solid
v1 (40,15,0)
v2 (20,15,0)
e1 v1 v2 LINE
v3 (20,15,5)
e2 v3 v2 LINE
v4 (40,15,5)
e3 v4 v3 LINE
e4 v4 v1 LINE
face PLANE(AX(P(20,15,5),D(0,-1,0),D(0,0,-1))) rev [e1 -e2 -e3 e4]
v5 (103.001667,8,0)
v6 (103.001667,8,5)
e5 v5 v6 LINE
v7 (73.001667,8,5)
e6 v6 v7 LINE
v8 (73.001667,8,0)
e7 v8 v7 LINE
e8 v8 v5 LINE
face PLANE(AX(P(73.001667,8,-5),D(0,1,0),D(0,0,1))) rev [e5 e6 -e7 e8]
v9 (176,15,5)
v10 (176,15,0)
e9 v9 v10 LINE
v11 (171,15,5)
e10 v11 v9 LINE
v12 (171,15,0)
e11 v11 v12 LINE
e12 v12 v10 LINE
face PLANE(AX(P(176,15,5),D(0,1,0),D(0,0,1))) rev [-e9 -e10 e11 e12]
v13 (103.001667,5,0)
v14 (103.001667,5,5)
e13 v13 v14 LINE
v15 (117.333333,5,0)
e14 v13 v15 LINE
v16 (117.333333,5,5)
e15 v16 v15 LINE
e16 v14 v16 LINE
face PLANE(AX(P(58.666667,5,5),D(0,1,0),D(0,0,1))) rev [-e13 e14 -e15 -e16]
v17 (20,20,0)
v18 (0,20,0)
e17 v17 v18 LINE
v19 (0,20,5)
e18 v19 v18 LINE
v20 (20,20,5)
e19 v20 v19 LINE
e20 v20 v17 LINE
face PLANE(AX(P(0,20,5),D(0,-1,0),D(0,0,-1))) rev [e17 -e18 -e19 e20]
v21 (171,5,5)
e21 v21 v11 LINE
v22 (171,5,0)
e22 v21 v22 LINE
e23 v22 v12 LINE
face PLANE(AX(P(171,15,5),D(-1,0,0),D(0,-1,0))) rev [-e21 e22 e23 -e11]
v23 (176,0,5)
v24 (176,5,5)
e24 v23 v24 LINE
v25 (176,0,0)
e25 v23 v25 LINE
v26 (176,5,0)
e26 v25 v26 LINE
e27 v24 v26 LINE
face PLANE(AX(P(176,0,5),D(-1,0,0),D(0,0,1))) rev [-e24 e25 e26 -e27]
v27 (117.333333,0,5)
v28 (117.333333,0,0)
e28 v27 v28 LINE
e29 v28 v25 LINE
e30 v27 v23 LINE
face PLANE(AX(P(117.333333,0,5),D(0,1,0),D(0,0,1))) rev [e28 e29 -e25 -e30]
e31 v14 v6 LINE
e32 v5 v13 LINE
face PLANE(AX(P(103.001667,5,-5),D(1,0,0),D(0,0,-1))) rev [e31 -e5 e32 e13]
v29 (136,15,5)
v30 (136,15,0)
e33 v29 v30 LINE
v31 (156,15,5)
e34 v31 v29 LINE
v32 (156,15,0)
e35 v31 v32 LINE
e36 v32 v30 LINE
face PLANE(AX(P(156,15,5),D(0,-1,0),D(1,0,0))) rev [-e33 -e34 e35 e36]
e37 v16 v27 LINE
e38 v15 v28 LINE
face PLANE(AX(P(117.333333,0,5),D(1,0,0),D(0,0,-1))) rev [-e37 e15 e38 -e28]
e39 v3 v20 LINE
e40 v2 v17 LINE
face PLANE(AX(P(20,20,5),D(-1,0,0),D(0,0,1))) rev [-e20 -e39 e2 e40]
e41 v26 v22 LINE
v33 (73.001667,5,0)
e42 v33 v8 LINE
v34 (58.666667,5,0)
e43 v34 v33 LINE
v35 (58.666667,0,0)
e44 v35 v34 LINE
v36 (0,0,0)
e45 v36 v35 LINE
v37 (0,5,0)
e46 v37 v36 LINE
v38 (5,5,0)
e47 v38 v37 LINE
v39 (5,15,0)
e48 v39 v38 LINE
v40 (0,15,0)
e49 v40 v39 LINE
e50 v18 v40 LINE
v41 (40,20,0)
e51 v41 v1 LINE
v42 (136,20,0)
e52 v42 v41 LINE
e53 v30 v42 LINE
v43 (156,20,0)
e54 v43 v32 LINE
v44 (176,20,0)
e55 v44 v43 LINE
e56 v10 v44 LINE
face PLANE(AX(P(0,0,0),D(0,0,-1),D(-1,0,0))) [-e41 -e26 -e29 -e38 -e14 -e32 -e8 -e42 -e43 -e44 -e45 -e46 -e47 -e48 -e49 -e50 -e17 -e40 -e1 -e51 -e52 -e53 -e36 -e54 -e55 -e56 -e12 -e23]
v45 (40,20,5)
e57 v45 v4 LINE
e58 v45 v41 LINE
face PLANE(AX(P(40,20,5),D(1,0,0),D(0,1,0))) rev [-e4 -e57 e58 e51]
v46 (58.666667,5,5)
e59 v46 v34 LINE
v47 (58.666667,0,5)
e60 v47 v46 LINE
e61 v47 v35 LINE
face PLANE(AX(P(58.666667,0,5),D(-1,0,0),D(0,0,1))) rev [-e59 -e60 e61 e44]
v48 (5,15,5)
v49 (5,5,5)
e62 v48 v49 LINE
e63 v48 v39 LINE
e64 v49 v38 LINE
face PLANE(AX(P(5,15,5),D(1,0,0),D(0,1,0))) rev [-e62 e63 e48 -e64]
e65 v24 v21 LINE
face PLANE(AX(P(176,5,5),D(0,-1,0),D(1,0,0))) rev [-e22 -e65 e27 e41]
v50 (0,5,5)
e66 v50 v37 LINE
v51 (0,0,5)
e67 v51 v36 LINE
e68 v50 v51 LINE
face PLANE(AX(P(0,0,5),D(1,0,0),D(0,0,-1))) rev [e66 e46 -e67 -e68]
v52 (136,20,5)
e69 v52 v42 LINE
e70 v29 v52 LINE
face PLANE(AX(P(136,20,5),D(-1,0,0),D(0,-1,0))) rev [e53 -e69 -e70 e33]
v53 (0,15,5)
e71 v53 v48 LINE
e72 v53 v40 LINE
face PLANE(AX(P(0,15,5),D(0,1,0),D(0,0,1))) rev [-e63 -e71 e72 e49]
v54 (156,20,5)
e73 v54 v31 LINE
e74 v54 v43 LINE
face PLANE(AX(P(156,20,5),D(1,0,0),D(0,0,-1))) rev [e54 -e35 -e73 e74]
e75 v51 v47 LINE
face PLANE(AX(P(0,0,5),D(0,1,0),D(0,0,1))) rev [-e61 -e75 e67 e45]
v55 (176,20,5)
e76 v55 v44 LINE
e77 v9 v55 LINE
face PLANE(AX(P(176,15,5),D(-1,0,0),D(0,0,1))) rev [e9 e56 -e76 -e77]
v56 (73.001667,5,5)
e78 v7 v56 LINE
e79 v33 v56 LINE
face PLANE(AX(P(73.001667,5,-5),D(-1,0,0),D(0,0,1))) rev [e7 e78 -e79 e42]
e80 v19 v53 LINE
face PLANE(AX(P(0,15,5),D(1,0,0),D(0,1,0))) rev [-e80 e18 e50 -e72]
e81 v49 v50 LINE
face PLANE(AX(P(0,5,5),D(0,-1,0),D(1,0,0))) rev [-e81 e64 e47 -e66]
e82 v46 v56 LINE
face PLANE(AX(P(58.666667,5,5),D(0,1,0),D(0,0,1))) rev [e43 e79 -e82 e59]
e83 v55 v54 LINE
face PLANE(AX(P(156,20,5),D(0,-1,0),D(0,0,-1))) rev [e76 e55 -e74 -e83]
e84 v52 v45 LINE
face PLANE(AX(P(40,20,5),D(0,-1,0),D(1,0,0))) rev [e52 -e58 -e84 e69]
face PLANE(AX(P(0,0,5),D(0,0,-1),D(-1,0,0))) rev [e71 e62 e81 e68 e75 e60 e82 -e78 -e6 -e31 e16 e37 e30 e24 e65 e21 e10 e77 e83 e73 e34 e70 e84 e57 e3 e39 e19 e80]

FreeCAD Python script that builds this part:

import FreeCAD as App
import Part
import Sketcher

V = App.Vector


def add_polygon(sketch, points):
    """Adds a closed chain of lines whose ends are joined by coincident constraints."""
    first, n = sketch.GeometryCount, len(points)
    for a, b in zip(points, points[1:] + points[:1]):
        sketch.addGeometry(Part.LineSegment(App.Vector(*a, 0), App.Vector(*b, 0)), False)
    for i in range(n):
        sketch.addConstraint(Sketcher.Constraint("Coincident", first + i, 2, first + (i + 1) % n, 1))

doc = App.newDocument("Part")
body = doc.addObject("PartDesign::Body", "Body")

sketch1 = body.newObject("Sketcher::SketchObject", "Sketch")
sketch1.AttachmentSupport = (doc.getObject("XY_Plane"), [""])
sketch1.MapMode = "FlatFace"
add_polygon(sketch1, [(117, 0), (176, 0), (176, 5), (171, 5), (171, 15), (176, 15), (176, 20), (156, 20), (156, 15), (136, 15), (136, 20), (40, 20), (40, 15), (20, 15), (20, 20), (0, 20), (0, 15), (5, 15), (5, 5), (0, 5), (0, 0), (59, 0), (59, 5), (117, 5)])
sketch1.addConstraint([
    Sketcher.Constraint("Horizontal", 0),
    Sketcher.Constraint("Vertical", 1),
    Sketcher.Constraint("Horizontal", 2),
    Sketcher.Constraint("Vertical", 3),
    Sketcher.Constraint("Horizontal", 4),
    Sketcher.Constraint("Vertical", 5),
    Sketcher.Constraint("Horizontal", 6),
    Sketcher.Constraint("Vertical", 7),
    Sketcher.Constraint("Horizontal", 8),
    Sketcher.Constraint("Vertical", 9),
    Sketcher.Constraint("Horizontal", 10),
    Sketcher.Constraint("Vertical", 11),
    Sketcher.Constraint("Horizontal", 12),
    Sketcher.Constraint("Vertical", 13),
    Sketcher.Constraint("Horizontal", 14),
    Sketcher.Constraint("Vertical", 15),
    Sketcher.Constraint("Horizontal", 16),
    Sketcher.Constraint("Vertical", 17),
    Sketcher.Constraint("Horizontal", 18),
    Sketcher.Constraint("Vertical", 19),
    Sketcher.Constraint("Horizontal", 20),
    Sketcher.Constraint("Vertical", 21),
    Sketcher.Constraint("Horizontal", 22),
    Sketcher.Constraint("Vertical", 23),
    Sketcher.Constraint("Coincident", 19, 2, -1, 1),
    Sketcher.Constraint("PointOnObject", 0, 2, -1),
    Sketcher.Constraint("PointOnObject", 14, 2, -2),
    Sketcher.Constraint("Horizontal", 4, 2, 7, 2),
    Sketcher.Constraint("Horizontal", 6, 2, 9, 2),
    Sketcher.Constraint("Horizontal", 8, 2, 11, 2),
    Sketcher.Constraint("Horizontal", 10, 2, 13, 2),
    Sketcher.Constraint("Horizontal", 12, 2, 15, 2),
    Sketcher.Constraint("Horizontal", 2, 2, 17, 2),
    Sketcher.Constraint("Horizontal", 18, 2, 21, 2),
    Sketcher.Constraint("Vertical", 1, 2, 4, 2),
    Sketcher.Constraint("Equal", 6, 8),
    Sketcher.Constraint("Equal", 8, 12),
    Sketcher.Constraint("Equal", 12, 14),
    Sketcher.Constraint("Equal", 4, 16),
    Sketcher.Constraint("Equal", 0, 20),
    Sketcher.Constraint("Equal", 20, 22),
    Sketcher.Constraint("Equal", 18, 1),
    Sketcher.Constraint("Equal", 1, 5),
    Sketcher.Constraint("DistanceX", 2, 2, 2, 1, 5.0),
    Sketcher.Constraint("DistanceX", 6, 2, 6, 1, 20.0),
    Sketcher.Constraint("DistanceX", 10, 2, 10, 1, 96.0),
    Sketcher.Constraint("DistanceY", 3, 1, 3, 2, 10.0),
])
pad1 = body.newObject("PartDesign::Pad", "Pad")
pad1.Profile = sketch1
pad1.Length = 5

sketch2 = body.newObject("Sketcher::SketchObject", "Sketch001")
sketch2.AttachmentSupport = (doc.getObject("XY_Plane"), [""])
sketch2.MapMode = "FlatFace"
sketch2.AttachmentOffset = App.Placement(V(0, 0, 5), App.Rotation())
add_polygon(sketch2, [(73, 8), (73, 5), (103, 5), (103, 8)])
sketch2.addConstraint([
    Sketcher.Constraint("Vertical", 0),
    Sketcher.Constraint("Horizontal", 1),
    Sketcher.Constraint("Vertical", 2),
    Sketcher.Constraint("Horizontal", 3),
    Sketcher.Constraint("DistanceX", 1, 1, 1, 2, 30.0),
    Sketcher.Constraint("DistanceY", 0, 2, 0, 1, 3.0),
    Sketcher.Constraint("DistanceY", -1, 1, 0, 2, 5.0),
    Sketcher.Constraint("DistanceX", -1, 1, 0, 2, 73.001667),
])
pocket1 = body.newObject("PartDesign::Pocket", "Pocket")
pocket1.Profile = sketch2
pocket1.Length = 10

doc.recompute()
